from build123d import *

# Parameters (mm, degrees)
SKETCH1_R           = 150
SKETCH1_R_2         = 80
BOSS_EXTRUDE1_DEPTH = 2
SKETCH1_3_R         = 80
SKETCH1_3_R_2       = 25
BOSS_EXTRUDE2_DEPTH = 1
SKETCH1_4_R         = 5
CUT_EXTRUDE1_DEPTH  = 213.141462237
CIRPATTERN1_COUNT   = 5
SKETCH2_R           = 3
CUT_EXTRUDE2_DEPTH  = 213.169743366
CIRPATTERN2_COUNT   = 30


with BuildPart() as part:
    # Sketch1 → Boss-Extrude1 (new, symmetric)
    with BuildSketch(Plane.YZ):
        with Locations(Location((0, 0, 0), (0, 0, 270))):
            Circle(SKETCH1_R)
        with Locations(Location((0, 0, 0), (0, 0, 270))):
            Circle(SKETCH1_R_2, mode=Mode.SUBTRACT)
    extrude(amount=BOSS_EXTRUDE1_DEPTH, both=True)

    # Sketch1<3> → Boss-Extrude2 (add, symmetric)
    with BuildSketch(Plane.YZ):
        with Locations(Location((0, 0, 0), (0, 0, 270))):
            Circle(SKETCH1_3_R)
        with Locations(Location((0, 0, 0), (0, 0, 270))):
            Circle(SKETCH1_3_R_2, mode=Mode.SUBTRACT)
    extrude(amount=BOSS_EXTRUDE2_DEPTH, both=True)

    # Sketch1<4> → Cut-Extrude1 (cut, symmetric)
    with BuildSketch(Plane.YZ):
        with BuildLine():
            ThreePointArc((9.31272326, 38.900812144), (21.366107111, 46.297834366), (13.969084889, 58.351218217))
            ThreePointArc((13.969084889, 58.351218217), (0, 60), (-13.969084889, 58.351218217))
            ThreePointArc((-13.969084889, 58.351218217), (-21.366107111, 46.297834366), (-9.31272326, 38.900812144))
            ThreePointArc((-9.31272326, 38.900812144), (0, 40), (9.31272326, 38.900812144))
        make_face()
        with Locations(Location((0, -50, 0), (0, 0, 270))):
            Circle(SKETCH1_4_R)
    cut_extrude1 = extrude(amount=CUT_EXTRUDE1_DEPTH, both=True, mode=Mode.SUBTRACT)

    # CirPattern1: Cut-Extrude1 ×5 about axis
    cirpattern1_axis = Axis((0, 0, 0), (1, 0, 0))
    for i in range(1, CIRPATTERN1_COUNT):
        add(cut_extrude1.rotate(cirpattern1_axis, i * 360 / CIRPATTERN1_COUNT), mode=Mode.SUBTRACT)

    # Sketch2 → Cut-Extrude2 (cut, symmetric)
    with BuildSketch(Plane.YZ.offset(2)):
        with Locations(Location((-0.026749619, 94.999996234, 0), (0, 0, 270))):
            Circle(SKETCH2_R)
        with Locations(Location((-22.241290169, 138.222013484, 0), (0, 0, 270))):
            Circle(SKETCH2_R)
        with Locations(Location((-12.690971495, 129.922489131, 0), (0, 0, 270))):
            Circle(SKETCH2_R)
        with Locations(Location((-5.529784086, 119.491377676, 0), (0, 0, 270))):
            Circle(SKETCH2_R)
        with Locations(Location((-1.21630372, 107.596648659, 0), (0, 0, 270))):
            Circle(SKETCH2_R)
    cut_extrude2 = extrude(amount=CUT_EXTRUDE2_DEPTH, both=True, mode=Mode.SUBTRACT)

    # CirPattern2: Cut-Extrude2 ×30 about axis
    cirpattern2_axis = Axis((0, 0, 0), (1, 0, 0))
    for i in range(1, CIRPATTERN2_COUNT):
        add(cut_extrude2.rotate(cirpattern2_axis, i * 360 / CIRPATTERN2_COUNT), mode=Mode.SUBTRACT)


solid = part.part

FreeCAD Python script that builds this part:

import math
import FreeCAD as App
import Part
import Sketcher

doc = App.newDocument("Part")
params = doc.addObject("Spreadsheet::Sheet", "Params")
for row, (alias, value) in enumerate([
    ("sketch1_diameter", "300 mm"),
    ("sketch1_diameter2", "160 mm"),
    ("pad1_length", "4 mm"),
    ("sketch2_diameter", "160 mm"),
    ("sketch2_diameter2", "50 mm"),
    ("pad2_length", "2 mm"),
    ("sketch3_diameter", "10 mm"),
    ("sketch3_radius", "10 mm"),
    ("sketch3_radius2", "60 mm"),
    ("pocket1_length", "426.282924 mm"),
    ("sketch4_diameter", "6 mm"),
    ("pocket2_length", "426.339487 mm"),
], start=1):
    params.set(f"A{row}", alias)
    params.set(f"B{row}", "=" + value)
    params.setAlias(f"B{row}", alias)

body = doc.addObject("PartDesign::Body", "Body")

sketch1 = doc.addObject("Sketcher::SketchObject", "Sketch")
body.addObject(sketch1)
sketch1.AttachmentSupport = (doc.YZ_Plane, [""])
sketch1.MapMode = "FlatFace"
sketch1.addGeometry([
    Part.Circle(App.Vector(0, 0, 0), App.Vector(0, 0, 1), 150),
    Part.Circle(App.Vector(0, 0, 0), App.Vector(0, 0, 1), 80),
], False)
sketch1.addConstraint([
    Sketcher.Constraint("Coincident", 0, 3, -1, 1),
    Sketcher.Constraint("Coincident", 1, 3, -1, 1),
    Sketcher.Constraint("Diameter", 0, 300.0),
    Sketcher.Constraint("Diameter", 1, 160.0),
])
sketch1.setExpression("Constraints[2]", "Params.sketch1_diameter")
sketch1.setExpression("Constraints[3]", "Params.sketch1_diameter2")
pad1 = doc.addObject("PartDesign::Pad", "Pad")
body.addObject(pad1)
pad1.Profile = sketch1
pad1.setExpression("Length", "Params.pad1_length")
pad1.Midplane = True

sketch2 = doc.addObject("Sketcher::SketchObject", "Sketch001")
body.addObject(sketch2)
sketch2.AttachmentSupport = (doc.YZ_Plane, [""])
sketch2.MapMode = "FlatFace"
sketch2.addGeometry([
    Part.Circle(App.Vector(0, 0, 0), App.Vector(0, 0, 1), 80),
    Part.Circle(App.Vector(0, 0, 0), App.Vector(0, 0, 1), 25),
], False)
sketch2.addConstraint([
    Sketcher.Constraint("Coincident", 0, 3, -1, 1),
    Sketcher.Constraint("Coincident", 1, 3, -1, 1),
    Sketcher.Constraint("Diameter", 0, 160.0),
    Sketcher.Constraint("Diameter", 1, 50.0),
])
sketch2.setExpression("Constraints[2]", "Params.sketch2_diameter")
sketch2.setExpression("Constraints[3]", "Params.sketch2_diameter2")
pad2 = doc.addObject("PartDesign::Pad", "Pad001")
body.addObject(pad2)
pad2.Profile = sketch2
pad2.setExpression("Length", "Params.pad2_length")
pad2.Midplane = True

sketch3 = doc.addObject("Sketcher::SketchObject", "Sketch002")
body.addObject(sketch3)
sketch3.AttachmentSupport = (doc.YZ_Plane, [""])
sketch3.MapMode = "FlatFace"
sketch3.addGeometry([
    Part.ArcOfCircle(Part.Circle(App.Vector(12, 49, 0), App.Vector(0, 0, 1), 10), math.radians(-103), math.radians(77)),
    Part.ArcOfCircle(Part.Circle(App.Vector(0, 0, 0), App.Vector(0, 0, 1), 60), math.radians(77), math.radians(103)),
    Part.ArcOfCircle(Part.Circle(App.Vector(-12, 49, 0), App.Vector(0, 0, 1), 10), math.radians(103), math.radians(283)),
    Part.ArcOfCircle(Part.Circle(App.Vector(0, 0, 0), App.Vector(0, 0, 1), 40), math.radians(77), math.radians(103)),
    Part.Circle(App.Vector(0, -50, 0), App.Vector(0, 0, 1), 5),
], False)
sketch3.addConstraint([
    Sketcher.Constraint("Tangent", 0, 2, 1, 1),
    Sketcher.Constraint("Tangent", 1, 2, 2, 1),
    Sketcher.Constraint("Tangent", 2, 2, 3, 2),
    Sketcher.Constraint("Tangent", 3, 1, 0, 1),
    Sketcher.Constraint("Coincident", 1, 3, -1, 1),
    Sketcher.Constraint("Coincident", 3, 3, -1, 1),
    Sketcher.Constraint("PointOnObject", 4, 3, -2),
    Sketcher.Constraint("Horizontal", 0, 3, 2, 3),
    Sketcher.Constraint("Diameter", 4, 10.0),
    Sketcher.Constraint("Radius", 0, 10.0),
    Sketcher.Constraint("Radius", 1, 60.0),
    Sketcher.Constraint("DistanceY", 4, 3, -1, 1, 50.0),
    Sketcher.Constraint("DistanceY", -1, 1, 0, 2, 58.351218),
])
sketch3.setExpression("Constraints[8]", "Params.sketch3_diameter")
sketch3.setExpression("Constraints[9]", "Params.sketch3_radius")
sketch3.setExpression("Constraints[10]", "Params.sketch3_radius2")
pocket1 = doc.addObject("PartDesign::Pocket", "Pocket")
body.addObject(pocket1)
pocket1.Profile = sketch3
pocket1.setExpression("Length", "Params.pocket1_length")
pocket1.Midplane = True
doc.recompute()

polarpattern = doc.addObject("PartDesign::PolarPattern", "PolarPattern")
body.addObject(polarpattern)
polarpattern.Originals = [pocket1]
polarpattern.Axis = (doc.X_Axis, [""])
polarpattern.Angle = 360
polarpattern.Occurrences = 5
body.Tip = polarpattern

sketch4 = doc.addObject("Sketcher::SketchObject", "Sketch003")
body.addObject(sketch4)
sketch4.AttachmentSupport = (doc.YZ_Plane, [""])
sketch4.MapMode = "FlatFace"
sketch4.AttachmentOffset = App.Placement(App.Vector(0, 0, 2), App.Rotation())
sketch4.addGeometry([
    Part.Circle(App.Vector(0, 95, 0), App.Vector(0, 0, 1), 3),
    Part.Circle(App.Vector(-22.2, 138.2, 0), App.Vector(0, 0, 1), 3),
    Part.Circle(App.Vector(-12.7, 129.9, 0), App.Vector(0, 0, 1), 3),
    Part.Circle(App.Vector(-5.5, 119.5, 0), App.Vector(0, 0, 1), 3),
    Part.Circle(App.Vector(-1.2, 107.6, 0), App.Vector(0, 0, 1), 3),
], False)
sketch4.addConstraint([
    Sketcher.Constraint("Equal", 0, 1),
    Sketcher.Constraint("Equal", 1, 2),
    Sketcher.Constraint("Equal", 2, 3),
    Sketcher.Constraint("Equal", 3, 4),
    Sketcher.Constraint("Diameter", 0, 6.0),
    Sketcher.Constraint("DistanceX", 0, 3, -1, 1, 0.02675),
    Sketcher.Constraint("DistanceX", 1, 3, -1, 1, 22.24129),
    Sketcher.Constraint("DistanceX", 2, 3, -1, 1, 12.690971),
    Sketcher.Constraint("DistanceY", -1, 1, 2, 3, 129.922489),
    Sketcher.Constraint("DistanceY", -1, 1, 4, 3, 107.596649),
    Sketcher.Constraint("DistanceY", 3, 3, 2, 3, 10.431111),
    Sketcher.Constraint("DistanceY", 0, 3, 3, 3, 24.491381),
    Sketcher.Constraint("DistanceX", 3, 3, 4, 3, 4.31348),
    Sketcher.Constraint("DistanceY", -1, 1, 1, 3, 138.222013),
    Sketcher.Constraint("DistanceX", 3, 3, -1, 1, 5.529784),
])
sketch4.setExpression("Constraints[4]", "Params.sketch4_diameter")
pocket2 = doc.addObject("PartDesign::Pocket", "Pocket001")
body.addObject(pocket2)
pocket2.Profile = sketch4
pocket2.setExpression("Length", "Params.pocket2_length")
pocket2.Midplane = True
doc.recompute()

polarpattern2 = doc.addObject("PartDesign::PolarPattern", "PolarPattern001")
body.addObject(polarpattern2)
polarpattern2.Originals = [pocket2]
polarpattern2.Axis = (doc.X_Axis, [""])
polarpattern2.Angle = 360
polarpattern2.Occurrences = 30
body.Tip = polarpattern2

doc.recompute()
